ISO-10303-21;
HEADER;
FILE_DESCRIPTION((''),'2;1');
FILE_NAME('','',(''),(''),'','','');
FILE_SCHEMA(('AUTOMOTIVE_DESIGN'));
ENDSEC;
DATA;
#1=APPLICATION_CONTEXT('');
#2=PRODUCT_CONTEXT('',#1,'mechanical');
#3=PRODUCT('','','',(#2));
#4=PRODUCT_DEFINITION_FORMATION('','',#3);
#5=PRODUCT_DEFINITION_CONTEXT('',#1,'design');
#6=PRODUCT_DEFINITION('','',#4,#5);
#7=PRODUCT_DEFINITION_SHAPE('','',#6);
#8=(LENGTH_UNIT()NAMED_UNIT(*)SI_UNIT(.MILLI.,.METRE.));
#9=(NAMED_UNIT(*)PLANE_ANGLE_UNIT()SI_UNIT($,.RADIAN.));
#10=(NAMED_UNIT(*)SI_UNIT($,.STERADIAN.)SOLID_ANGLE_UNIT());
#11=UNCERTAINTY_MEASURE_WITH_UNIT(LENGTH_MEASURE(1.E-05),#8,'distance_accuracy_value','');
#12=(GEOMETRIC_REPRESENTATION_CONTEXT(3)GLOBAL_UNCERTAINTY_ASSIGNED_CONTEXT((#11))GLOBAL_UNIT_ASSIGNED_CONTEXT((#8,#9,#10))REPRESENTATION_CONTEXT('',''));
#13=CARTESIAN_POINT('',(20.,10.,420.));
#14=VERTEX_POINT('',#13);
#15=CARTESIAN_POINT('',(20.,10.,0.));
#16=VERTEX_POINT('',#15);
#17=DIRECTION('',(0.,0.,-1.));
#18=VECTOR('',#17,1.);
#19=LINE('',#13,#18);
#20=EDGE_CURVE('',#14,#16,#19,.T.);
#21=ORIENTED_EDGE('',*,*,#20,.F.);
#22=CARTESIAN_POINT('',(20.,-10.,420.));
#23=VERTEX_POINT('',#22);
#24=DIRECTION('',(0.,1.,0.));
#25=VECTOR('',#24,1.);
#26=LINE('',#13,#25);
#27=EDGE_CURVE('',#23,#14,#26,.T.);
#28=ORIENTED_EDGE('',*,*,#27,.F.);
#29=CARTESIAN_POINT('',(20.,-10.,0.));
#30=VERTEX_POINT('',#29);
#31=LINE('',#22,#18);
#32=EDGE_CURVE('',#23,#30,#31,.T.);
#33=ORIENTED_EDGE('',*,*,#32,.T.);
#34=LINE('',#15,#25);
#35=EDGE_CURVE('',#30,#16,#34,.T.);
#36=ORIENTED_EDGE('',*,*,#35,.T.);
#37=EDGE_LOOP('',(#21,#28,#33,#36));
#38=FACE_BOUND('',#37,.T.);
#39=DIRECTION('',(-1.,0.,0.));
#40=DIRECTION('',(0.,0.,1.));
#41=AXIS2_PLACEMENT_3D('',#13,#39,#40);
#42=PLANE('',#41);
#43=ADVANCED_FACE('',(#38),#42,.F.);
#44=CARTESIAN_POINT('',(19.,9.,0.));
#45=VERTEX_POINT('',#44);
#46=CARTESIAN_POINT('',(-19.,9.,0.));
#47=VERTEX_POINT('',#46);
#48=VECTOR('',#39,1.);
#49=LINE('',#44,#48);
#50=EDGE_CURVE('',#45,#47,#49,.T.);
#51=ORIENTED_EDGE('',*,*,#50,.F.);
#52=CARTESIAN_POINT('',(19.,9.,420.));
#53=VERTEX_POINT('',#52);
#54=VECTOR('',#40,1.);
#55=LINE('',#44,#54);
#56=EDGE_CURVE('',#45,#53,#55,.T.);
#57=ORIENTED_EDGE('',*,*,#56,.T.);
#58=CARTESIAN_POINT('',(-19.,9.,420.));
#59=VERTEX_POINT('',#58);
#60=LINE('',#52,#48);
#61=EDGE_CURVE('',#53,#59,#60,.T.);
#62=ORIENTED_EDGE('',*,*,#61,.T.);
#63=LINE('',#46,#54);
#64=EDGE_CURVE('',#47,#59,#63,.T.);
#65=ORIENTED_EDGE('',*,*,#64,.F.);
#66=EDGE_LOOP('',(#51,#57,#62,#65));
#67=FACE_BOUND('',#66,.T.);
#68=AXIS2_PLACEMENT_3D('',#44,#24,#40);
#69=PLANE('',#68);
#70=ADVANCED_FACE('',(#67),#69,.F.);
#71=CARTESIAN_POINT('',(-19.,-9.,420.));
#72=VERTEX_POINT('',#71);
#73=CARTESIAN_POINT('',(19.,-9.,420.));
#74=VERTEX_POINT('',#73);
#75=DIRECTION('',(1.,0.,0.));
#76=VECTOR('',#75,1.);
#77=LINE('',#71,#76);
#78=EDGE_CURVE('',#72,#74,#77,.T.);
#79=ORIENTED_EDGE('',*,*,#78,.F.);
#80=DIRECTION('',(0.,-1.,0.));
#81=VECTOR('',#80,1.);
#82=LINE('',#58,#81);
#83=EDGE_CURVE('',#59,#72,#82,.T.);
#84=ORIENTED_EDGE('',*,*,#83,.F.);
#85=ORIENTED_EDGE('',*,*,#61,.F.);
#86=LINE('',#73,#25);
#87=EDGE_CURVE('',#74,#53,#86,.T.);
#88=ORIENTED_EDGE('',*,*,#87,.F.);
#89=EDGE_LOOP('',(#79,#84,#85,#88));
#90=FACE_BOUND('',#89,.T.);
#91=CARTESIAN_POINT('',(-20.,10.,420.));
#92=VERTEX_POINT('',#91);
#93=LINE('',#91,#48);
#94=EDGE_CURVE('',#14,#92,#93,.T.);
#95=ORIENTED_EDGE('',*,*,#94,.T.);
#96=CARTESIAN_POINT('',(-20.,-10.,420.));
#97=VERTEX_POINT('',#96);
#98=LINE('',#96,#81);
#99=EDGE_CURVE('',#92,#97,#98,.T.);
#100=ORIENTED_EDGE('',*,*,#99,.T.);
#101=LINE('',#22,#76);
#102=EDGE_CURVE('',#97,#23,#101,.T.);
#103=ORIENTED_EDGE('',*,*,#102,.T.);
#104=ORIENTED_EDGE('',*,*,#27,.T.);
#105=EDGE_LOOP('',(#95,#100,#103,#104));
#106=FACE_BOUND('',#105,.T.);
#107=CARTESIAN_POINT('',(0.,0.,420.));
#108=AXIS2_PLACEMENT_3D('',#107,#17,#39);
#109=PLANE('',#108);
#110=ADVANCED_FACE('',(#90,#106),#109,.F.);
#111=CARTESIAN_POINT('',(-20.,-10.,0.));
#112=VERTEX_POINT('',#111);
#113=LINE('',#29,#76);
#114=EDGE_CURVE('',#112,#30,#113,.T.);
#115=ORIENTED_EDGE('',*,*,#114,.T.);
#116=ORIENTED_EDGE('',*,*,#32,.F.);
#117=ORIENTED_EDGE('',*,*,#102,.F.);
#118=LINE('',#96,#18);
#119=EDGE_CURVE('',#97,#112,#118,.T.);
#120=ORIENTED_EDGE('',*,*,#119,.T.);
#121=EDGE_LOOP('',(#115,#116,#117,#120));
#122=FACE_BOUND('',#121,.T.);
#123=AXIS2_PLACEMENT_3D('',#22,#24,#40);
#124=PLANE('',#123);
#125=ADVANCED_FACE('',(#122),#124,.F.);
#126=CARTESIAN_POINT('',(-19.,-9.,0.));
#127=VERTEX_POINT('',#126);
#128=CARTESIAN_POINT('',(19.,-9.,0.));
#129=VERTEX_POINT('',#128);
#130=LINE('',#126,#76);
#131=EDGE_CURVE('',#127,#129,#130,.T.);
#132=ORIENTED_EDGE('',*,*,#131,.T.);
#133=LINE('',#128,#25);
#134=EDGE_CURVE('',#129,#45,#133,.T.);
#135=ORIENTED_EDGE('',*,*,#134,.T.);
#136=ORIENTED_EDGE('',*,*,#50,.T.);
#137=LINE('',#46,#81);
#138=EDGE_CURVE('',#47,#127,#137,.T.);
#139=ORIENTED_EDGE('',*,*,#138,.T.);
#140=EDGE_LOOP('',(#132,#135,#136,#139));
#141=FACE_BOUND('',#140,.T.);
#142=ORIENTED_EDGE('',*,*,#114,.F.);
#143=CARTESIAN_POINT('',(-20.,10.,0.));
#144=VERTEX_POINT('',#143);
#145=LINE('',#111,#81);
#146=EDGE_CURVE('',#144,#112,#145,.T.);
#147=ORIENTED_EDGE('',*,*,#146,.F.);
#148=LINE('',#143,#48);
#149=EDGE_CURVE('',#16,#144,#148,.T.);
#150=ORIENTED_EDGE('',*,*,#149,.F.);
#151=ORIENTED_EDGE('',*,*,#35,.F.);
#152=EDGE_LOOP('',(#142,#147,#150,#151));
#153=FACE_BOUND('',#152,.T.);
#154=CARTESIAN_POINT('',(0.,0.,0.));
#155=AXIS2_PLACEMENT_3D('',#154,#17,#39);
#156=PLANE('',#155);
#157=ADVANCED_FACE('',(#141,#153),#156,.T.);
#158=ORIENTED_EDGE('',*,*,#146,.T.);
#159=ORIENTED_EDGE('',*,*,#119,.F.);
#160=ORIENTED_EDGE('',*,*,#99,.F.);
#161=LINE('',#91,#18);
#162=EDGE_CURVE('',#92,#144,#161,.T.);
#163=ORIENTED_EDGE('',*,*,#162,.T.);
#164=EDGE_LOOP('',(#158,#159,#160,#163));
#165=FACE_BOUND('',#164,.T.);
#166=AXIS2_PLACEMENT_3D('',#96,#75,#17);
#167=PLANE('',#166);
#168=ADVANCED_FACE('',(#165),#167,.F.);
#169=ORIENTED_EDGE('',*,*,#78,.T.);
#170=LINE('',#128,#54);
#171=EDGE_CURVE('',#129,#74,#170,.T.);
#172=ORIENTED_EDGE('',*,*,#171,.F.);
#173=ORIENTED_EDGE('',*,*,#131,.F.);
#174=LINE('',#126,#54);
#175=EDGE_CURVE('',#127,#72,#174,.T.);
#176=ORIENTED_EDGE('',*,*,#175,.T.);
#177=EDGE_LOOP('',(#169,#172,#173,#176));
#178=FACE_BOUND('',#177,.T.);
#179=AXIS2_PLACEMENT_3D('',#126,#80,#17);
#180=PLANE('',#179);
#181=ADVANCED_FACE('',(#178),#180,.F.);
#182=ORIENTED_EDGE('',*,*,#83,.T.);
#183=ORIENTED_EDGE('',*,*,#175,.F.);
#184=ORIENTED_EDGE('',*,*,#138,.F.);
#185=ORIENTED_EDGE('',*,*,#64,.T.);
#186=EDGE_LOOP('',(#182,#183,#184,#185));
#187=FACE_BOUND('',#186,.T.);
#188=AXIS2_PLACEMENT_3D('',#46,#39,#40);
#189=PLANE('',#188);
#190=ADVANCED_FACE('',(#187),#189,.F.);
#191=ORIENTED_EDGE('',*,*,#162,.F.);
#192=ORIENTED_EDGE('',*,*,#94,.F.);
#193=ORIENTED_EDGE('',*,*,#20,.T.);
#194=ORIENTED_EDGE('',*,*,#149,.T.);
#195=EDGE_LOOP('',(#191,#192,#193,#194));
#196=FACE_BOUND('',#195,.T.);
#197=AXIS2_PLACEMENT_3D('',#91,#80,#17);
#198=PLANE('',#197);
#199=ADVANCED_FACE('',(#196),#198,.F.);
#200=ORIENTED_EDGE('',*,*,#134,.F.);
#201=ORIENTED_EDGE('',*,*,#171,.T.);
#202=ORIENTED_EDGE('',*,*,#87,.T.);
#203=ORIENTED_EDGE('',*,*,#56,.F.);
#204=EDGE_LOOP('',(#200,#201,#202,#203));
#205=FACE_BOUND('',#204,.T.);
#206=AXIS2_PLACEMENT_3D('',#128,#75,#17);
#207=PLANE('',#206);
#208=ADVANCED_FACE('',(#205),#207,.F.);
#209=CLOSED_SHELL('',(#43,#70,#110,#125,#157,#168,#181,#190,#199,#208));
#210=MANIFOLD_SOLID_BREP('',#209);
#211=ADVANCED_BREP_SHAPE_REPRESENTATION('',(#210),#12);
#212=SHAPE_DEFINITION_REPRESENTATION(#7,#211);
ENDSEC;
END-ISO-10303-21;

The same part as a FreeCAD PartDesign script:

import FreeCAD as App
import Part
import Sketcher
Q = App.Units.Quantity


def add_polygon(sketch, points):
    """Adds a closed chain of lines whose ends are joined by coincident constraints."""
    first, n = sketch.GeometryCount, len(points)
    for a, b in zip(points, points[1:] + points[:1]):
        sketch.addGeometry(Part.LineSegment(App.Vector(*a, 0), App.Vector(*b, 0)), False)
    for i in range(n):
        sketch.addConstraint(Sketcher.Constraint("Coincident", first + i, 2, first + (i + 1) % n, 1))

doc = App.newDocument("Part")
params = doc.addObject("Spreadsheet::Sheet", "Params")
for row, (alias, value) in enumerate([
    ("sketch1_width", "40 mm"),
    ("sketch1_height", "20 mm"),
    ("pad1_length", "420 mm"),
    ("sketch2_width", "38 mm"),
    ("sketch2_height", "18 mm"),
], start=1):
    params.set(f"A{row}", alias)
    params.set(f"B{row}", "=" + value)
    params.setAlias(f"B{row}", alias)

body = doc.addObject("PartDesign::Body", "Body")

# Sketch on XY plane
sketch1 = body.newObject("Sketcher::SketchObject", "Sketch")
sketch1.AttachmentSupport = (doc.getObject("XY_Plane"), [""])
sketch1.MapMode = "FlatFace"
add_polygon(sketch1, [(-20, 10), (-20, -10), (20, -10), (20, 10)])  # lines 0-3
sketch1.addConstraint(Sketcher.Constraint("Vertical", 0))
sketch1.addConstraint(Sketcher.Constraint("Horizontal", 1))
sketch1.addConstraint(Sketcher.Constraint("Vertical", 2))
sketch1.addConstraint(Sketcher.Constraint("Horizontal", 3))
sketch1.addConstraint(Sketcher.Constraint("Symmetric", 0, 2, 2, 2, -1, 1))
sketch1.addConstraint(Sketcher.Constraint("DistanceX", 1, 1, 1, 2, Q("40 mm")))
sketch1.addConstraint(Sketcher.Constraint("DistanceY", 0, 2, 0, 1, Q("20 mm")))
sketch1.setExpression("Constraints[9]", "Params.sketch1_width")
sketch1.setExpression("Constraints[10]", "Params.sketch1_height")
pad1 = body.newObject("PartDesign::Pad", "Pad")
pad1.Profile = sketch1
pad1.setExpression("Length", "Params.pad1_length")

# Sketch on XY plane
sketch2 = body.newObject("Sketcher::SketchObject", "Sketch001")
sketch2.AttachmentSupport = (doc.getObject("XY_Plane"), [""])
sketch2.MapMode = "FlatFace"
sketch2.AttachmentOffset = App.Placement(App.Vector(0, 0, 420), App.Rotation())
add_polygon(sketch2, [(-19, 9), (-19, -9), (19, -9), (19, 9)])  # lines 0-3
sketch2.addConstraint(Sketcher.Constraint("Vertical", 0))
sketch2.addConstraint(Sketcher.Constraint("Horizontal", 1))
sketch2.addConstraint(Sketcher.Constraint("Vertical", 2))
sketch2.addConstraint(Sketcher.Constraint("Horizontal", 3))
sketch2.addConstraint(Sketcher.Constraint("Symmetric", 0, 2, 2, 2, -1, 1))
sketch2.addConstraint(Sketcher.Constraint("DistanceX", 1, 1, 1, 2, Q("38 mm")))
sketch2.addConstraint(Sketcher.Constraint("DistanceY", 0, 2, 0, 1, Q("18 mm")))
sketch2.setExpression("Constraints[9]", "Params.sketch2_width")
sketch2.setExpression("Constraints[10]", "Params.sketch2_height")
pocket1 = body.newObject("PartDesign::Pocket", "Pocket")
pocket1.Profile = sketch2
pocket1.Type = "ThroughAll"

doc.recompute()
